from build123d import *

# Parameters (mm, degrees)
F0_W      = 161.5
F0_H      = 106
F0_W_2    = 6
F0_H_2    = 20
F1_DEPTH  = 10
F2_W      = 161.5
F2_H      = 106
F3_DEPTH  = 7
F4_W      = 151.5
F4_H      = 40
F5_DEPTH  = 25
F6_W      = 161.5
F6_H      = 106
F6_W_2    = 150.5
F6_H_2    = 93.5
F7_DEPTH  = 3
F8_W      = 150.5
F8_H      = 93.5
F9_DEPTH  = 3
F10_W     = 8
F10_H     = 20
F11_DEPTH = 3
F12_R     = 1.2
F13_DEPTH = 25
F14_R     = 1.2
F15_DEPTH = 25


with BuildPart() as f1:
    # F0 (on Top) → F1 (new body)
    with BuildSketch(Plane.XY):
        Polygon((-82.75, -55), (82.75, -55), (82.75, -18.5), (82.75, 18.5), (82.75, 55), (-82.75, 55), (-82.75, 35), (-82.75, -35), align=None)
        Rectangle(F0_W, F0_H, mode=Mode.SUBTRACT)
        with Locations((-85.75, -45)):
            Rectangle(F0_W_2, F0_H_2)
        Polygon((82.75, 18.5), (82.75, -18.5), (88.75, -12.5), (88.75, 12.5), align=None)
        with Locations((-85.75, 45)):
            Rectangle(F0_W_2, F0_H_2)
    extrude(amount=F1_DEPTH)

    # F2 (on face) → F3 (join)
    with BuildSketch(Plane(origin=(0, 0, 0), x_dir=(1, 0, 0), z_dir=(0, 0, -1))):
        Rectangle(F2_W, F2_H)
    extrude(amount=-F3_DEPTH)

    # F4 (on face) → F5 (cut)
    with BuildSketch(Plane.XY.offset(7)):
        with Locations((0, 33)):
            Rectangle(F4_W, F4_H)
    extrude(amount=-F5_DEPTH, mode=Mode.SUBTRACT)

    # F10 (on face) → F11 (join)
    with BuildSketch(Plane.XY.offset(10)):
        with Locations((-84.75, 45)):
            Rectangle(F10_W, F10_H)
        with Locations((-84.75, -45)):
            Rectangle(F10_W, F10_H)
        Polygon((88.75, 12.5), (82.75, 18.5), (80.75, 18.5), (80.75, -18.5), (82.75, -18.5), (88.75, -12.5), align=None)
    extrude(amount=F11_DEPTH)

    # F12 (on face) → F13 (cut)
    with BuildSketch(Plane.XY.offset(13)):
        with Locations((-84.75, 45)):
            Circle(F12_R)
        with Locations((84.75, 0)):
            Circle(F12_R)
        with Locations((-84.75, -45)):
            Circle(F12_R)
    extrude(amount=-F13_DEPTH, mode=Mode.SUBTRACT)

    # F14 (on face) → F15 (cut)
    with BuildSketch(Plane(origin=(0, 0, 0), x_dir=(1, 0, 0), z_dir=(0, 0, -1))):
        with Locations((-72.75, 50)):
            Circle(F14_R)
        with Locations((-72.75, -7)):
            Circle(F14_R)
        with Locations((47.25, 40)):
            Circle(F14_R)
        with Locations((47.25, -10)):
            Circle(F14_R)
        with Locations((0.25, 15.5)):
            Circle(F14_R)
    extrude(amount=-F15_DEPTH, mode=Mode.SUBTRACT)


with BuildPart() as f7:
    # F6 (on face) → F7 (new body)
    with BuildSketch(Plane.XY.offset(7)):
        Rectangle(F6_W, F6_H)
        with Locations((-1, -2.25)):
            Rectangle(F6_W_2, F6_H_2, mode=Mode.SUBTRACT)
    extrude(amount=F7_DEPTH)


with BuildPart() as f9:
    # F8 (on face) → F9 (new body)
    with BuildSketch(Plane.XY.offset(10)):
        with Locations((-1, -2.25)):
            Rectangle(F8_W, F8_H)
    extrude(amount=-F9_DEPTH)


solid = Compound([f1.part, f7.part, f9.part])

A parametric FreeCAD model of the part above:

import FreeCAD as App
import Part
import Sketcher
from FreeCAD import Vector
Q = App.Units.Quantity

doc = App.newDocument("Part")
body = doc.addObject("PartDesign::Body", "Body")

sketch1 = doc.addObject("Sketcher::SketchObject", "Sketch")
body.addObject(sketch1)
sketch1.AttachmentSupport = (doc.XY_Plane, [""])
sketch1.MapMode = "FlatFace"
sketch1.addGeometry(Part.LineSegment(Vector(82.75, -55, 0), Vector(82.75, -18.5, 0)), False)
sketch1.addGeometry(Part.LineSegment(Vector(82.75, -18.5, 0), Vector(88.75, -12.5, 0)), False)
sketch1.addGeometry(Part.LineSegment(Vector(88.75, -12.5, 0), Vector(88.75, 12.5, 0)), False)
sketch1.addGeometry(Part.LineSegment(Vector(88.75, 12.5, 0), Vector(82.75, 18.5, 0)), False)
sketch1.addGeometry(Part.LineSegment(Vector(82.75, 18.5, 0), Vector(82.75, 55, 0)), False)
sketch1.addGeometry(Part.LineSegment(Vector(82.75, 55, 0), Vector(-88.75, 55, 0)), False)
sketch1.addGeometry(Part.LineSegment(Vector(-88.75, 55, 0), Vector(-88.75, 35, 0)), False)
sketch1.addGeometry(Part.LineSegment(Vector(-88.75, 35, 0), Vector(-82.75, 35, 0)), False)
sketch1.addGeometry(Part.LineSegment(Vector(-82.75, 35, 0), Vector(-82.75, -35, 0)), False)
sketch1.addGeometry(Part.LineSegment(Vector(-82.75, -35, 0), Vector(-88.75, -35, 0)), False)
sketch1.addGeometry(Part.LineSegment(Vector(-88.75, -35, 0), Vector(-88.75, -55, 0)), False)
sketch1.addGeometry(Part.LineSegment(Vector(-88.75, -55, 0), Vector(82.75, -55, 0)), False)
sketch1.addGeometry(Part.LineSegment(Vector(80.75, -53, 0), Vector(-80.75, -53, 0)), False)
sketch1.addGeometry(Part.LineSegment(Vector(-80.75, -53, 0), Vector(-80.75, 53, 0)), False)
sketch1.addGeometry(Part.LineSegment(Vector(-80.75, 53, 0), Vector(80.75, 53, 0)), False)
sketch1.addGeometry(Part.LineSegment(Vector(80.75, 53, 0), Vector(80.75, -53, 0)), False)
sketch1.addConstraint(Sketcher.Constraint("Coincident", 0, 2, 1, 1))
sketch1.addConstraint(Sketcher.Constraint("Coincident", 1, 2, 2, 1))
sketch1.addConstraint(Sketcher.Constraint("Coincident", 2, 2, 3, 1))
sketch1.addConstraint(Sketcher.Constraint("Coincident", 3, 2, 4, 1))
sketch1.addConstraint(Sketcher.Constraint("Coincident", 4, 2, 5, 1))
sketch1.addConstraint(Sketcher.Constraint("Coincident", 5, 2, 6, 1))
sketch1.addConstraint(Sketcher.Constraint("Coincident", 6, 2, 7, 1))
sketch1.addConstraint(Sketcher.Constraint("Coincident", 7, 2, 8, 1))
sketch1.addConstraint(Sketcher.Constraint("Coincident", 8, 2, 9, 1))
sketch1.addConstraint(Sketcher.Constraint("Coincident", 9, 2, 10, 1))
sketch1.addConstraint(Sketcher.Constraint("Coincident", 10, 2, 11, 1))
sketch1.addConstraint(Sketcher.Constraint("Coincident", 11, 2, 0, 1))
sketch1.addConstraint(Sketcher.Constraint("Coincident", 12, 2, 13, 1))
sketch1.addConstraint(Sketcher.Constraint("Coincident", 13, 2, 14, 1))
sketch1.addConstraint(Sketcher.Constraint("Coincident", 14, 2, 15, 1))
sketch1.addConstraint(Sketcher.Constraint("Coincident", 15, 2, 12, 1))
sketch1.addConstraint(Sketcher.Constraint("Vertical", 0))
sketch1.addConstraint(Sketcher.Constraint("Vertical", 2))
sketch1.addConstraint(Sketcher.Constraint("Vertical", 4))
sketch1.addConstraint(Sketcher.Constraint("Horizontal", 5))
sketch1.addConstraint(Sketcher.Constraint("Vertical", 6))
sketch1.addConstraint(Sketcher.Constraint("Horizontal", 7))
sketch1.addConstraint(Sketcher.Constraint("Vertical", 8))
sketch1.addConstraint(Sketcher.Constraint("Horizontal", 9))
sketch1.addConstraint(Sketcher.Constraint("Vertical", 10))
sketch1.addConstraint(Sketcher.Constraint("Horizontal", 11))
sketch1.addConstraint(Sketcher.Constraint("Horizontal", 12))
sketch1.addConstraint(Sketcher.Constraint("Vertical", 13))
sketch1.addConstraint(Sketcher.Constraint("Horizontal", 14))
sketch1.addConstraint(Sketcher.Constraint("Vertical", 15))
sketch1.addConstraint(Sketcher.Constraint("Symmetric", 12, 2, 14, 2, -1, 1))
sketch1.addConstraint(Sketcher.Constraint("Symmetric", 0, 2, 3, 2, -1))
sketch1.addConstraint(Sketcher.Constraint("Symmetric", 6, 2, 9, 2, -1))
sketch1.addConstraint(Sketcher.Constraint("Perpendicular", 1, 3))
sketch1.addConstraint(Sketcher.Constraint("Equal", 0, 4))
sketch1.addConstraint(Sketcher.Constraint("Equal", 1, 3))
sketch1.addConstraint(Sketcher.Constraint("DistanceX", 7, 1, 7, 2, Q("6 mm")))
sketch1.addConstraint(Sketcher.Constraint("DistanceY", 2, 1, 2, 2, Q("25 mm")))
sketch1.addConstraint(Sketcher.Constraint("DistanceY", 6, 2, 6, 1, Q("20 mm")))
sketch1.addConstraint(Sketcher.Constraint("DistanceY", 8, 2, 8, 1, Q("70 mm")))
sketch1.addConstraint(Sketcher.Constraint("DistanceY", 13, 1, 13, 2, Q("106 mm")))
sketch1.addConstraint(Sketcher.Constraint("DistanceX", 5, 2, 5, 1, Q("171.5 mm")))
sketch1.addConstraint(Sketcher.Constraint("DistanceX", 12, 2, 12, 1, Q("161.5 mm")))
sketch1.addConstraint(Sketcher.Constraint("DistanceY", 0, 1, 0, 2, Q("36.5 mm")))
sketch1.addConstraint(Sketcher.Constraint("DistanceX", 10, 2, 12, 2, Q("8 mm")))
pad1 = doc.addObject("PartDesign::Pad", "Pad")
body.addObject(pad1)
pad1.Profile = sketch1
pad1.Length = 10

sketch2 = doc.addObject("Sketcher::SketchObject", "Sketch001")
body.addObject(sketch2)
sketch2.AttachmentSupport = (doc.XY_Plane, [""])
sketch2.MapMode = "FlatFace"
sketch2.addGeometry(Part.LineSegment(Vector(-80.75, -53, 0), Vector(-80.75, 53, 0)), False)
sketch2.addGeometry(Part.LineSegment(Vector(-80.75, 53, 0), Vector(80.75, 53, 0)), False)
sketch2.addGeometry(Part.LineSegment(Vector(80.75, 53, 0), Vector(80.75, -53, 0)), False)
sketch2.addGeometry(Part.LineSegment(Vector(80.75, -53, 0), Vector(-80.75, -53, 0)), False)
sketch2.addConstraint(Sketcher.Constraint("Coincident", 0, 2, 1, 1))
sketch2.addConstraint(Sketcher.Constraint("Coincident", 1, 2, 2, 1))
sketch2.addConstraint(Sketcher.Constraint("Coincident", 2, 2, 3, 1))
sketch2.addConstraint(Sketcher.Constraint("Coincident", 3, 2, 0, 1))
sketch2.addConstraint(Sketcher.Constraint("Vertical", 0))
sketch2.addConstraint(Sketcher.Constraint("Horizontal", 1))
sketch2.addConstraint(Sketcher.Constraint("Vertical", 2))
sketch2.addConstraint(Sketcher.Constraint("Horizontal", 3))
sketch2.addConstraint(Sketcher.Constraint("Symmetric", 0, 2, 2, 2, -1, 1))
sketch2.addConstraint(Sketcher.Constraint("DistanceY", 0, 1, 0, 2, Q("106 mm")))
sketch2.addConstraint(Sketcher.Constraint("DistanceX", 1, 1, 1, 2, Q("161.5 mm")))
pad2 = doc.addObject("PartDesign::Pad", "Pad001")
body.addObject(pad2)
pad2.Profile = sketch2
pad2.Length = 7

sketch3 = doc.addObject("Sketcher::SketchObject", "Sketch002")
body.addObject(sketch3)
sketch3.AttachmentSupport = (doc.XY_Plane, [""])
sketch3.MapMode = "FlatFace"
sketch3.AttachmentOffset = App.Placement(Vector(0, 0, 7), App.Rotation())
sketch3.addGeometry(Part.LineSegment(Vector(-75.75, 53, 0), Vector(-75.75, 13, 0)), False)
sketch3.addGeometry(Part.LineSegment(Vector(-75.75, 13, 0), Vector(75.75, 13, 0)), False)
sketch3.addGeometry(Part.LineSegment(Vector(75.75, 13, 0), Vector(75.75, 53, 0)), False)
sketch3.addGeometry(Part.LineSegment(Vector(75.75, 53, 0), Vector(-75.75, 53, 0)), False)
sketch3.addConstraint(Sketcher.Constraint("Coincident", 0, 2, 1, 1))
sketch3.addConstraint(Sketcher.Constraint("Coincident", 1, 2, 2, 1))
sketch3.addConstraint(Sketcher.Constraint("Coincident", 2, 2, 3, 1))
sketch3.addConstraint(Sketcher.Constraint("Coincident", 3, 2, 0, 1))
sketch3.addConstraint(Sketcher.Constraint("Vertical", 0))
sketch3.addConstraint(Sketcher.Constraint("Horizontal", 1))
sketch3.addConstraint(Sketcher.Constraint("Vertical", 2))
sketch3.addConstraint(Sketcher.Constraint("Horizontal", 3))
sketch3.addConstraint(Sketcher.Constraint("DistanceY", 0, 2, 0, 1, Q("40 mm")))
sketch3.addConstraint(Sketcher.Constraint("DistanceX", 1, 1, 1, 2, Q("151.5 mm")))
sketch3.addConstraint(Sketcher.Constraint("DistanceY", -1, 1, 0, 2, Q("13 mm")))
sketch3.addConstraint(Sketcher.Constraint("DistanceX", 0, 2, -1, 1, Q("75.75 mm")))
pocket1 = doc.addObject("PartDesign::Pocket", "Pocket")
body.addObject(pocket1)
pocket1.Profile = sketch3
pocket1.Length = 25

sketch4 = doc.addObject("Sketcher::SketchObject", "Sketch003")
body.addObject(sketch4)
sketch4.AttachmentSupport = (doc.XY_Plane, [""])
sketch4.MapMode = "FlatFace"
sketch4.AttachmentOffset = App.Placement(Vector(0, 0, 10), App.Rotation())
sketch4.addGeometry(Part.LineSegment(Vector(-88.75, 55, 0), Vector(-88.75, 35, 0)), False)
sketch4.addGeometry(Part.LineSegment(Vector(-88.75, 35, 0), Vector(-80.75, 35, 0)), False)
sketch4.addGeometry(Part.LineSegment(Vector(-80.75, 35, 0), Vector(-80.75, 55, 0)), False)
sketch4.addGeometry(Part.LineSegment(Vector(-80.75, 55, 0), Vector(-88.75, 55, 0)), False)
sketch4.addGeometry(Part.LineSegment(Vector(-88.75, -35, 0), Vector(-88.75, -55, 0)), False)
sketch4.addGeometry(Part.LineSegment(Vector(-88.75, -55, 0), Vector(-80.75, -55, 0)), False)
sketch4.addGeometry(Part.LineSegment(Vector(-80.75, -55, 0), Vector(-80.75, -35, 0)), False)
sketch4.addGeometry(Part.LineSegment(Vector(-80.75, -35, 0), Vector(-88.75, -35, 0)), False)
sketch4.addGeometry(Part.LineSegment(Vector(88.75, 12.5, 0), Vector(82.75, 18.5, 0)), False)
sketch4.addGeometry(Part.LineSegment(Vector(82.75, 18.5, 0), Vector(80.75, 18.5, 0)), False)
sketch4.addGeometry(Part.LineSegment(Vector(80.75, 18.5, 0), Vector(80.75, -18.5, 0)), False)
sketch4.addGeometry(Part.LineSegment(Vector(80.75, -18.5, 0), Vector(82.75, -18.5, 0)), False)
sketch4.addGeometry(Part.LineSegment(Vector(82.75, -18.5, 0), Vector(88.75, -12.5, 0)), False)
sketch4.addGeometry(Part.LineSegment(Vector(88.75, -12.5, 0), Vector(88.75, 12.5, 0)), False)
sketch4.addConstraint(Sketcher.Constraint("Coincident", 0, 2, 1, 1))
sketch4.addConstraint(Sketcher.Constraint("Coincident", 1, 2, 2, 1))
sketch4.addConstraint(Sketcher.Constraint("Coincident", 2, 2, 3, 1))
sketch4.addConstraint(Sketcher.Constraint("Coincident", 3, 2, 0, 1))
sketch4.addConstraint(Sketcher.Constraint("Coincident", 4, 2, 5, 1))
sketch4.addConstraint(Sketcher.Constraint("Coincident", 5, 2, 6, 1))
sketch4.addConstraint(Sketcher.Constraint("Coincident", 6, 2, 7, 1))
sketch4.addConstraint(Sketcher.Constraint("Coincident", 7, 2, 4, 1))
sketch4.addConstraint(Sketcher.Constraint("Coincident", 8, 2, 9, 1))
sketch4.addConstraint(Sketcher.Constraint("Coincident", 9, 2, 10, 1))
sketch4.addConstraint(Sketcher.Constraint("Coincident", 10, 2, 11, 1))
sketch4.addConstraint(Sketcher.Constraint("Coincident", 11, 2, 12, 1))
sketch4.addConstraint(Sketcher.Constraint("Coincident", 12, 2, 13, 1))
sketch4.addConstraint(Sketcher.Constraint("Coincident", 13, 2, 8, 1))
sketch4.addConstraint(Sketcher.Constraint("Vertical", 0))
sketch4.addConstraint(Sketcher.Constraint("Horizontal", 1))
sketch4.addConstraint(Sketcher.Constraint("Vertical", 2))
sketch4.addConstraint(Sketcher.Constraint("Horizontal", 3))
sketch4.addConstraint(Sketcher.Constraint("Vertical", 4))
sketch4.addConstraint(Sketcher.Constraint("Horizontal", 5))
sketch4.addConstraint(Sketcher.Constraint("Vertical", 6))
sketch4.addConstraint(Sketcher.Constraint("Horizontal", 7))
sketch4.addConstraint(Sketcher.Constraint("Horizontal", 9))
sketch4.addConstraint(Sketcher.Constraint("Vertical", 10))
sketch4.addConstraint(Sketcher.Constraint("Horizontal", 11))
sketch4.addConstraint(Sketcher.Constraint("Vertical", 13))
sketch4.addConstraint(Sketcher.Constraint("Symmetric", 3, 2, 4, 2, -1))
sketch4.addConstraint(Sketcher.Constraint("Symmetric", 1, 2, 6, 2, -1))
sketch4.addConstraint(Sketcher.Constraint("Symmetric", 8, 2, 11, 2, -1))
sketch4.addConstraint(Sketcher.Constraint("Perpendicular", 8, 12))
sketch4.addConstraint(Sketcher.Constraint("Equal", 8, 12))
sketch4.addConstraint(Sketcher.Constraint("DistanceX", 1, 1, 1, 2, Q("8 mm")))
sketch4.addConstraint(Sketcher.Constraint("DistanceX", 9, 2, 9, 1, Q("2 mm")))
sketch4.addConstraint(Sketcher.Constraint("DistanceY", 0, 2, 0, 1, Q("20 mm")))
sketch4.addConstraint(Sketcher.Constraint("DistanceY", 10, 2, 10, 1, Q("37 mm")))
sketch4.addConstraint(Sketcher.Constraint("DistanceY", 13, 1, 13, 2, Q("25 mm")))
sketch4.addConstraint(Sketcher.Constraint("DistanceY", -1, 1, 0, 2, Q("35 mm")))
sketch4.addConstraint(Sketcher.Constraint("DistanceX", 1, 2, 8, 2, Q("163.5 mm")))
sketch4.addConstraint(Sketcher.Constraint("DistanceX", 0, 2, -1, 1, Q("88.75 mm")))
pad3 = doc.addObject("PartDesign::Pad", "Pad002")
body.addObject(pad3)
pad3.Profile = sketch4
pad3.Length = 3

sketch5 = doc.addObject("Sketcher::SketchObject", "Sketch004")
body.addObject(sketch5)
sketch5.AttachmentSupport = (doc.XY_Plane, [""])
sketch5.MapMode = "FlatFace"
sketch5.AttachmentOffset = App.Placement(Vector(0, 0, 13), App.Rotation())
sketch5.addGeometry(Part.Circle(Vector(-84.75, 45, 0), Vector(0, 0, 1), 1.2), False)
sketch5.addGeometry(Part.Circle(Vector(84.75, 0, 0), Vector(0, 0, 1), 1.2), False)
sketch5.addGeometry(Part.Circle(Vector(-84.75, -45, 0), Vector(0, 0, 1), 1.2), False)
sketch5.addConstraint(Sketcher.Constraint("Equal", 0, 1))
sketch5.addConstraint(Sketcher.Constraint("Equal", 1, 2))
sketch5.addConstraint(Sketcher.Constraint("Symmetric", 0, 3, 2, 3, -1))
sketch5.addConstraint(Sketcher.Constraint("PointOnObject", 1, 3, -1))
sketch5.addConstraint(Sketcher.Constraint("Diameter", 0, Q("2.4 mm")))
sketch5.addConstraint(Sketcher.Constraint("DistanceY", -1, 1, 0, 3, Q("45 mm")))
sketch5.addConstraint(Sketcher.Constraint("DistanceX", 0, 3, 1, 3, Q("169.5 mm")))
sketch5.addConstraint(Sketcher.Constraint("DistanceX", 0, 3, -1, 1, Q("84.75 mm")))
pocket2 = doc.addObject("PartDesign::Pocket", "Pocket001")
body.addObject(pocket2)
pocket2.Profile = sketch5
pocket2.Length = 25

sketch6 = doc.addObject("Sketcher::SketchObject", "Sketch005")
body.addObject(sketch6)
sketch6.AttachmentSupport = (doc.XY_Plane, [""])
sketch6.MapMode = "FlatFace"
sketch6.addGeometry(Part.Circle(Vector(-72.75, -50, 0), Vector(0, 0, 1), 1.2), False)
sketch6.addGeometry(Part.Circle(Vector(-72.75, 7, 0), Vector(0, 0, 1), 1.2), False)
sketch6.addGeometry(Part.Circle(Vector(47.25, -40, 0), Vector(0, 0, 1), 1.2), False)
sketch6.addGeometry(Part.Circle(Vector(47.25, 10, 0), Vector(0, 0, 1), 1.2), False)
sketch6.addGeometry(Part.Circle(Vector(0.25, -15.5, 0), Vector(0, 0, 1), 1.2), False)
sketch6.addConstraint(Sketcher.Constraint("Equal", 0, 1))
sketch6.addConstraint(Sketcher.Constraint("Equal", 1, 2))
sketch6.addConstraint(Sketcher.Constraint("Equal", 2, 3))
sketch6.addConstraint(Sketcher.Constraint("Equal", 3, 4))
sketch6.addConstraint(Sketcher.Constraint("Vertical", 0, 3, 1, 3))
sketch6.addConstraint(Sketcher.Constraint("Vertical", 2, 3, 3, 3))
sketch6.addConstraint(Sketcher.Constraint("Diameter", 0, Q("2.4 mm")))
sketch6.addConstraint(Sketcher.Constraint("DistanceY", 0, 3, -1, 1, Q("50 mm")))
sketch6.addConstraint(Sketcher.Constraint("DistanceY", -1, 1, 1, 3, Q("7 mm")))
sketch6.addConstraint(Sketcher.Constraint("DistanceY", 2, 3, -1, 1, Q("40 mm")))
sketch6.addConstraint(Sketcher.Constraint("DistanceY", -1, 1, 3, 3, Q("10 mm")))
sketch6.addConstraint(Sketcher.Constraint("DistanceX", 0, 3, 2, 3, Q("120 mm")))
sketch6.addConstraint(Sketcher.Constraint("DistanceX", 4, 3, 2, 3, Q("47 mm")))
sketch6.addConstraint(Sketcher.Constraint("DistanceY", 4, 3, -1, 1, Q("15.5 mm")))
sketch6.addConstraint(Sketcher.Constraint("DistanceX", 0, 3, -1, 1, Q("72.75 mm")))
pocket3 = doc.addObject("PartDesign::Pocket", "Pocket002")
body.addObject(pocket3)
pocket3.Profile = sketch6
pocket3.Length = 25
pocket3.Reversed = True
body2 = doc.addObject("PartDesign::Body", "Body001")

sketch7 = doc.addObject("Sketcher::SketchObject", "Sketch006")
body2.addObject(sketch7)
sketch7.AttachmentSupport = (doc.getObject("XY_Plane001"), [""])
sketch7.MapMode = "FlatFace"
sketch7.AttachmentOffset = App.Placement(Vector(0, 0, 7), App.Rotation())
sketch7.addGeometry(Part.LineSegment(Vector(-80.75, 53, 0), Vector(-80.75, -53, 0)), False)
sketch7.addGeometry(Part.LineSegment(Vector(-80.75, -53, 0), Vector(80.75, -53, 0)), False)
sketch7.addGeometry(Part.LineSegment(Vector(80.75, -53, 0), Vector(80.75, 53, 0)), False)
sketch7.addGeometry(Part.LineSegment(Vector(80.75, 53, 0), Vector(-80.75, 53, 0)), False)
sketch7.addGeometry(Part.LineSegment(Vector(74.25, -49, 0), Vector(-76.25, -49, 0)), False)
sketch7.addGeometry(Part.LineSegment(Vector(-76.25, -49, 0), Vector(-76.25, 44.5, 0)), False)
sketch7.addGeometry(Part.LineSegment(Vector(-76.25, 44.5, 0), Vector(74.25, 44.5, 0)), False)
sketch7.addGeometry(Part.LineSegment(Vector(74.25, 44.5, 0), Vector(74.25, -49, 0)), False)
sketch7.addConstraint(Sketcher.Constraint("Coincident", 0, 2, 1, 1))
sketch7.addConstraint(Sketcher.Constraint("Coincident", 1, 2, 2, 1))
sketch7.addConstraint(Sketcher.Constraint("Coincident", 2, 2, 3, 1))
sketch7.addConstraint(Sketcher.Constraint("Coincident", 3, 2, 0, 1))
sketch7.addConstraint(Sketcher.Constraint("Coincident", 4, 2, 5, 1))
sketch7.addConstraint(Sketcher.Constraint("Coincident", 5, 2, 6, 1))
sketch7.addConstraint(Sketcher.Constraint("Coincident", 6, 2, 7, 1))
sketch7.addConstraint(Sketcher.Constraint("Coincident", 7, 2, 4, 1))
sketch7.addConstraint(Sketcher.Constraint("Vertical", 0))
sketch7.addConstraint(Sketcher.Constraint("Horizontal", 1))
sketch7.addConstraint(Sketcher.Constraint("Vertical", 2))
sketch7.addConstraint(Sketcher.Constraint("Horizontal", 3))
sketch7.addConstraint(Sketcher.Constraint("Horizontal", 4))
sketch7.addConstraint(Sketcher.Constraint("Vertical", 5))
sketch7.addConstraint(Sketcher.Constraint("Horizontal", 6))
sketch7.addConstraint(Sketcher.Constraint("Vertical", 7))
sketch7.addConstraint(Sketcher.Constraint("Symmetric", 0, 2, 2, 2, -1, 1))
sketch7.addConstraint(Sketcher.Constraint("DistanceY", 0, 2, 0, 1, Q("106 mm")))
sketch7.addConstraint(Sketcher.Constraint("DistanceX", 1, 1, 1, 2, Q("161.5 mm")))
sketch7.addConstraint(Sketcher.Constraint("DistanceX", 4, 2, 4, 1, Q("150.5 mm")))
sketch7.addConstraint(Sketcher.Constraint("DistanceY", 5, 1, 5, 2, Q("93.5 mm")))
sketch7.addConstraint(Sketcher.Constraint("DistanceY", 4, 2, -1, 1, Q("49 mm")))
sketch7.addConstraint(Sketcher.Constraint("DistanceX", 4, 2, 1, 2, Q("157 mm")))
pad4 = doc.addObject("PartDesign::Pad", "Pad003")
body2.addObject(pad4)
pad4.Profile = sketch7
pad4.Length = 3
body3 = doc.addObject("PartDesign::Body", "Body002")

sketch8 = doc.addObject("Sketcher::SketchObject", "Sketch007")
body3.addObject(sketch8)
sketch8.AttachmentSupport = (doc.getObject("XY_Plane002"), [""])
sketch8.MapMode = "FlatFace"
sketch8.AttachmentOffset = App.Placement(Vector(0, 0, 10), App.Rotation())
sketch8.addGeometry(Part.LineSegment(Vector(-76.25, 44.5, 0), Vector(-76.25, -49, 0)), False)
sketch8.addGeometry(Part.LineSegment(Vector(-76.25, -49, 0), Vector(74.25, -49, 0)), False)
sketch8.addGeometry(Part.LineSegment(Vector(74.25, -49, 0), Vector(74.25, 44.5, 0)), False)
sketch8.addGeometry(Part.LineSegment(Vector(74.25, 44.5, 0), Vector(-76.25, 44.5, 0)), False)
sketch8.addConstraint(Sketcher.Constraint("Coincident", 0, 2, 1, 1))
sketch8.addConstraint(Sketcher.Constraint("Coincident", 1, 2, 2, 1))
sketch8.addConstraint(Sketcher.Constraint("Coincident", 2, 2, 3, 1))
sketch8.addConstraint(Sketcher.Constraint("Coincident", 3, 2, 0, 1))
sketch8.addConstraint(Sketcher.Constraint("Vertical", 0))
sketch8.addConstraint(Sketcher.Constraint("Horizontal", 1))
sketch8.addConstraint(Sketcher.Constraint("Vertical", 2))
sketch8.addConstraint(Sketcher.Constraint("Horizontal", 3))
sketch8.addConstraint(Sketcher.Constraint("DistanceX", 1, 1, 1, 2, Q("150.5 mm")))
sketch8.addConstraint(Sketcher.Constraint("DistanceY", 0, 2, 0, 1, Q("93.5 mm")))
sketch8.addConstraint(Sketcher.Constraint("DistanceY", 0, 2, -1, 1, Q("49 mm")))
sketch8.addConstraint(Sketcher.Constraint("DistanceX", 0, 2, -1, 1, Q("76.25 mm")))
pad5 = doc.addObject("PartDesign::Pad", "Pad004")
body3.addObject(pad5)
pad5.Profile = sketch8
pad5.Length = 3
pad5.Reversed = True

doc.recompute()
